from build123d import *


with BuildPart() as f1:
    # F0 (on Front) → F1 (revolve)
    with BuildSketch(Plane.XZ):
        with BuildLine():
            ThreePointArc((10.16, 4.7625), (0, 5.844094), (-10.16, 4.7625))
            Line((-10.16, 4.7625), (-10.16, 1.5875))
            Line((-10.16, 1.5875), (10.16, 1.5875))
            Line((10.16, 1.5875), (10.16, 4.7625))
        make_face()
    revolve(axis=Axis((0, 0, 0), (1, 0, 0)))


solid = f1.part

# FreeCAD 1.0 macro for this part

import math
import FreeCAD as App
import Part
import Sketcher
from FreeCAD import Vector
Q = App.Units.Quantity

doc = App.newDocument("Part")
body = doc.addObject("PartDesign::Body", "Body")

# Sketch on XZ plane
sketch1 = body.newObject("Sketcher::SketchObject", "Sketch")
sketch1.AttachmentSupport = (doc.getObject("XZ_Plane"), [""])
sketch1.MapMode = "FlatFace"
sketch1.addGeometry([
    Part.ArcOfCircle(Part.Circle(Vector(0, -42.4, 0), Vector(0, 0, 1), 48.3), math.radians(78), math.radians(102)),
    Part.LineSegment(Vector(-10.2, 4.8, 0), Vector(-10.2, 1.6, 0)),
    Part.LineSegment(Vector(-10.2, 1.6, 0), Vector(10.2, 1.6, 0)),
    Part.LineSegment(Vector(10.2, 1.6, 0), Vector(10.2, 4.8, 0)),
], False)
sketch1.addConstraint([
    Sketcher.Constraint("Coincident", 0, 2, 1, 1),
    Sketcher.Constraint("Coincident", 1, 2, 2, 1),
    Sketcher.Constraint("Coincident", 2, 2, 3, 1),
    Sketcher.Constraint("Coincident", 3, 2, 0, 1),
    Sketcher.Constraint("Vertical", 1),
    Sketcher.Constraint("Horizontal", 2),
    Sketcher.Constraint("Vertical", 3),
    Sketcher.Constraint("Symmetric", 0, 2, 3, 2, -2),
    Sketcher.Constraint("Radius", 0, Q("1.8999999 in")),
    Sketcher.Constraint("DistanceX", 2, 1, 2, 2, Q("0.8 in")),
    Sketcher.Constraint("DistanceY", 1, 2, 1, 1, Q("0.125 in")),
    Sketcher.Constraint("DistanceY", -1, 1, 0, 2, Q("0.1875 in")),
])
revolution = body.newObject("PartDesign::Revolution", "Revolution")
revolution.Profile = sketch1
revolution.ReferenceAxis = (sketch1, ["H_Axis"])
revolution.Angle = 360

doc.recompute()
